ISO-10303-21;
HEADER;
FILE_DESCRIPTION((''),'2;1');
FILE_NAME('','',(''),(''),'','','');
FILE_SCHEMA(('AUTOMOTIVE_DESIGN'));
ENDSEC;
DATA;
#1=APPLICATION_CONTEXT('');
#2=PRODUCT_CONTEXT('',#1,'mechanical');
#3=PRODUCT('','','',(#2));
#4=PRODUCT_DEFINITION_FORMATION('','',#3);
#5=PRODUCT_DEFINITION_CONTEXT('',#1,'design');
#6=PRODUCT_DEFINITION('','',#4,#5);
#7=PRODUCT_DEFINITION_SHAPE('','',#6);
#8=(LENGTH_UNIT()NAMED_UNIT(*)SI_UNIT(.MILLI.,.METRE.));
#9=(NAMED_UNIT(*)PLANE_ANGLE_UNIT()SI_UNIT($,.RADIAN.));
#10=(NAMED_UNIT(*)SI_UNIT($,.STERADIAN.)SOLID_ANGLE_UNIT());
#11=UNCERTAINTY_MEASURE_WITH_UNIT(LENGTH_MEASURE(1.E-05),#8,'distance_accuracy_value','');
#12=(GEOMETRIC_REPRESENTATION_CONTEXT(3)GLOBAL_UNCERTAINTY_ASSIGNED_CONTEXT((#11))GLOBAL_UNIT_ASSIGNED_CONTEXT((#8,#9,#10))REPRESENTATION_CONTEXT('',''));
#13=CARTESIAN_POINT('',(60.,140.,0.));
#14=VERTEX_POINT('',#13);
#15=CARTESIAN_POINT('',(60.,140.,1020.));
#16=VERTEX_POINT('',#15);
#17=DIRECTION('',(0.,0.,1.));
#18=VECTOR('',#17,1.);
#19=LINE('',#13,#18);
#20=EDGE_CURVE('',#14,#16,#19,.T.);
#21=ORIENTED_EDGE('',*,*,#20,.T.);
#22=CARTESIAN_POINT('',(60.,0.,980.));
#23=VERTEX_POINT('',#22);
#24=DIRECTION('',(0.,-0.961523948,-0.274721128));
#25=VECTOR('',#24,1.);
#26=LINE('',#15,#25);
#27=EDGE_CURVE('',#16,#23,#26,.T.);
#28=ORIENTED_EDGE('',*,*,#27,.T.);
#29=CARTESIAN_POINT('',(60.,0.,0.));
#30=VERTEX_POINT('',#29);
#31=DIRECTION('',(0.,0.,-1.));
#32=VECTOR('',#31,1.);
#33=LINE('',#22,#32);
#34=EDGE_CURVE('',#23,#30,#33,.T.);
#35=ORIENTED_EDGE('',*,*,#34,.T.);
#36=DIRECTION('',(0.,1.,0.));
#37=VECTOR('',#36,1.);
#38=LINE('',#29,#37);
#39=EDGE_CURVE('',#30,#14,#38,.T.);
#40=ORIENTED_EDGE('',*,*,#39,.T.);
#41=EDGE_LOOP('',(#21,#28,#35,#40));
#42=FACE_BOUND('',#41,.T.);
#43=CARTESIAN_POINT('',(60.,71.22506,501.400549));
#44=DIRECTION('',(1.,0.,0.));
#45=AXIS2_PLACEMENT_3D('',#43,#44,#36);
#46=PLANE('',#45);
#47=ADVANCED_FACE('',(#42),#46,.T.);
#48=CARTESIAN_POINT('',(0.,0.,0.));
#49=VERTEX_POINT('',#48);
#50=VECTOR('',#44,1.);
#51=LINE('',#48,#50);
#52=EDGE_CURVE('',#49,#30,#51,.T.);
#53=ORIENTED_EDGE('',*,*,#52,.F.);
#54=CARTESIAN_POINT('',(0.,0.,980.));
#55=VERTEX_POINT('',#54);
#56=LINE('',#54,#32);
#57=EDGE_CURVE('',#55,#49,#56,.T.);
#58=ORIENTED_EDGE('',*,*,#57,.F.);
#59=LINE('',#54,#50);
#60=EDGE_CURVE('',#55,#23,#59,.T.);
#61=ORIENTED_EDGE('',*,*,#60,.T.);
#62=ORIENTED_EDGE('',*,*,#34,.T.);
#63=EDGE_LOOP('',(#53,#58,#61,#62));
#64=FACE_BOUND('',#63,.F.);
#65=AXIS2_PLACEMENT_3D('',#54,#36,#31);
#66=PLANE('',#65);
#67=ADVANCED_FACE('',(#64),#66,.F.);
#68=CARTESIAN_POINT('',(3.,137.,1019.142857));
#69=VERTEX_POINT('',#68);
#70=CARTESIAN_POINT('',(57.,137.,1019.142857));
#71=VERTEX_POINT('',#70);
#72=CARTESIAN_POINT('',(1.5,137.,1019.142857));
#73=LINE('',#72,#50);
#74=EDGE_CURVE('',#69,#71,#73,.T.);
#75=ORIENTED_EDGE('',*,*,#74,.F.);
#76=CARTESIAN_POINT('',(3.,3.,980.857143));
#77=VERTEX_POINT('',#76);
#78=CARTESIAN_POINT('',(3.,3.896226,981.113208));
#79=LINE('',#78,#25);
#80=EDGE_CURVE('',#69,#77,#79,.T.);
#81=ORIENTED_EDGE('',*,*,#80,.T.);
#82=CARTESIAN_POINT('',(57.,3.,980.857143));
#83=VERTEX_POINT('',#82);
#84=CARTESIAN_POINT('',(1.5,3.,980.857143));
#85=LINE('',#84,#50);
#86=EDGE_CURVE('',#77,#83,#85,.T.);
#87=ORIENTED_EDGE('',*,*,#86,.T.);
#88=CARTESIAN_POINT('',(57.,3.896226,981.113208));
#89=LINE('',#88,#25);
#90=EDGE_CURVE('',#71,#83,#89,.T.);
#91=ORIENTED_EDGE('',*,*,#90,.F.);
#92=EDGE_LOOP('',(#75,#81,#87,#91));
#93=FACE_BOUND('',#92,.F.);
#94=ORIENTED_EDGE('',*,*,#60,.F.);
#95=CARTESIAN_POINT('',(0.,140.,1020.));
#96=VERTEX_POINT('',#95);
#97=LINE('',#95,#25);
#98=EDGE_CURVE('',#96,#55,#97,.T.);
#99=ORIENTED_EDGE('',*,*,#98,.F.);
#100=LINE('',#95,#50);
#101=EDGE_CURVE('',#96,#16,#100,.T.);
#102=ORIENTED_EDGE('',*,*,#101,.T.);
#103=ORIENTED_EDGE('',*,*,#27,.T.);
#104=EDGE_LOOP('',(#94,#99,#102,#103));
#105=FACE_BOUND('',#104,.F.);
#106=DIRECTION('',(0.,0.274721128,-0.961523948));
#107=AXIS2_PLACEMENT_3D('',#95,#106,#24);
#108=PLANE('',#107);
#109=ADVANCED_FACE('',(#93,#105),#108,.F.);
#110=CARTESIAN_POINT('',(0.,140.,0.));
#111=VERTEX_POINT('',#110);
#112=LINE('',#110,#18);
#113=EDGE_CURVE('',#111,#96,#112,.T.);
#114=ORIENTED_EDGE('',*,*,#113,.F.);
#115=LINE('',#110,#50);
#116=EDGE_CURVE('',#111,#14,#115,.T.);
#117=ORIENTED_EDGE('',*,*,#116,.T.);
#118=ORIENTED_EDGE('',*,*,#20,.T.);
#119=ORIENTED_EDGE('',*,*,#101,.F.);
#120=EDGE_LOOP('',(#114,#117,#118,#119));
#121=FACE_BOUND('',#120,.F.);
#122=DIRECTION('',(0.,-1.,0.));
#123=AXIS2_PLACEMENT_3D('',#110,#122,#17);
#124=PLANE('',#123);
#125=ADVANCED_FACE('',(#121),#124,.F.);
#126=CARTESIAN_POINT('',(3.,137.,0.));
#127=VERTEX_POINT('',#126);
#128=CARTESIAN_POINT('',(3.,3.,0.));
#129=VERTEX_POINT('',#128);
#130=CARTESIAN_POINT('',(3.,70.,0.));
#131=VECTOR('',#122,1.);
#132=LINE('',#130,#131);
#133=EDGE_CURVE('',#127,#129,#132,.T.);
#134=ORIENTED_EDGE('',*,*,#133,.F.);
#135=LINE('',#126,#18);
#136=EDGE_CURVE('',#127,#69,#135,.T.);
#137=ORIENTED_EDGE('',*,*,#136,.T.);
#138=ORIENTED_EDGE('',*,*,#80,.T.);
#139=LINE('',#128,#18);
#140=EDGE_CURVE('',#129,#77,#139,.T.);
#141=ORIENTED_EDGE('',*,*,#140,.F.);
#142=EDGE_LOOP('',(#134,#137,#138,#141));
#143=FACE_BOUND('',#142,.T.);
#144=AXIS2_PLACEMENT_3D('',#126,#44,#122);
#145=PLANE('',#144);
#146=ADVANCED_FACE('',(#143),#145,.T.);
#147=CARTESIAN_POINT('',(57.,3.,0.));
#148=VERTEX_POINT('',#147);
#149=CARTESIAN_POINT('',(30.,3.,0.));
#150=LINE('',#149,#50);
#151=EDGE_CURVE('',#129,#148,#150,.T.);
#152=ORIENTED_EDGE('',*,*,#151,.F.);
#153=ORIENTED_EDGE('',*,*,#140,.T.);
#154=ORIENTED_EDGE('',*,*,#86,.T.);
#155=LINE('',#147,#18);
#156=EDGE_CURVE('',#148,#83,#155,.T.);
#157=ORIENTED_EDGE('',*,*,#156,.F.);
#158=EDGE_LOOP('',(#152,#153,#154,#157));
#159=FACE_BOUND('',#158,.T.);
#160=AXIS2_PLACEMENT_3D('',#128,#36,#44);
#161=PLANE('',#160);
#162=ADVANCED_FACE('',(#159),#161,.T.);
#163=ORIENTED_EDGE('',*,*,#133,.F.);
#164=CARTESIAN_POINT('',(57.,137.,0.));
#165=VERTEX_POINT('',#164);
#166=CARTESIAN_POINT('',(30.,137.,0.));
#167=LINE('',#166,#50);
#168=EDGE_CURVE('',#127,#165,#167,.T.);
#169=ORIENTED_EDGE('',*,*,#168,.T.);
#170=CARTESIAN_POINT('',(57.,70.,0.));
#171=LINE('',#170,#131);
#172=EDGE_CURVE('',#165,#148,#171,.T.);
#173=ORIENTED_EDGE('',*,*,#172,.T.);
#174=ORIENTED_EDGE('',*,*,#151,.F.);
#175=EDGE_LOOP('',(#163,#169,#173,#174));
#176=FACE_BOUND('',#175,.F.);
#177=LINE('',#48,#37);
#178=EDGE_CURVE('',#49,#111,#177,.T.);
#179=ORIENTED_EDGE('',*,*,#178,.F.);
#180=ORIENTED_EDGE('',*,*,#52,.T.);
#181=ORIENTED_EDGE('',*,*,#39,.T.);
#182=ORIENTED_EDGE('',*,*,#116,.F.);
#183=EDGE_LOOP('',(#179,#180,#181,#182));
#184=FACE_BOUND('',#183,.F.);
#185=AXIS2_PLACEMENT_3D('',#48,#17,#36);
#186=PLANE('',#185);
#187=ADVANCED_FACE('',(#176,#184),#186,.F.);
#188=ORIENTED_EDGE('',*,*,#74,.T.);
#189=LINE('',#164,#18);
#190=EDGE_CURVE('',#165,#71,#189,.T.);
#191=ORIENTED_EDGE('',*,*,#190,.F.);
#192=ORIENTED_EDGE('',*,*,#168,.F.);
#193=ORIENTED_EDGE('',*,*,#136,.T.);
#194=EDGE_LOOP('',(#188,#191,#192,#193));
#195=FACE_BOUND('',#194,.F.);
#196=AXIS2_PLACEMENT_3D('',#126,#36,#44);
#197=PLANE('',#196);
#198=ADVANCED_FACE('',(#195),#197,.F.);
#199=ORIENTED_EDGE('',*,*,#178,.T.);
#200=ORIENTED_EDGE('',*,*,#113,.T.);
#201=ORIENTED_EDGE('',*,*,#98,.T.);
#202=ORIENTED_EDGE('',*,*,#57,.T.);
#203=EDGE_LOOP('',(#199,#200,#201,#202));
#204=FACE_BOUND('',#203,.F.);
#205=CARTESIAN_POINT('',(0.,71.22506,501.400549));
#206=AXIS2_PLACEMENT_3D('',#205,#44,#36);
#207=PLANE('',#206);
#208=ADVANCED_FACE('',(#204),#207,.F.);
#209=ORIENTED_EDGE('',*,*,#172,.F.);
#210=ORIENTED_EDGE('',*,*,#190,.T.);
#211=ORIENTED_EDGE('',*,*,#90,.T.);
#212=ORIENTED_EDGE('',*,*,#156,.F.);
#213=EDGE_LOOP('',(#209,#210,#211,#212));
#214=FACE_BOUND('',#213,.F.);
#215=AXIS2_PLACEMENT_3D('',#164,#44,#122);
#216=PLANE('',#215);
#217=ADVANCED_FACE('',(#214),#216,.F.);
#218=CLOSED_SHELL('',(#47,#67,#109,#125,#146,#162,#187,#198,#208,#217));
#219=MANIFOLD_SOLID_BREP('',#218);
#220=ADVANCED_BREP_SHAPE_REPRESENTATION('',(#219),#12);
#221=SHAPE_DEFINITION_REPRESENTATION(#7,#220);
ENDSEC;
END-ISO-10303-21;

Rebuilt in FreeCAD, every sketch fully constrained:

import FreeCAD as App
import Part
import Sketcher
from FreeCAD import Vector


def add_polygon(sketch, points):
    """Adds a closed chain of lines whose ends are joined by coincident constraints."""
    first, n = sketch.GeometryCount, len(points)
    for a, b in zip(points, points[1:] + points[:1]):
        sketch.addGeometry(Part.LineSegment(App.Vector(*a, 0), App.Vector(*b, 0)), False)
    for i in range(n):
        sketch.addConstraint(Sketcher.Constraint("Coincident", first + i, 2, first + (i + 1) % n, 1))

doc = App.newDocument("Part")
body = doc.addObject("PartDesign::Body", "Body")

sketch1 = doc.addObject("Sketcher::SketchObject", "Sketch")
body.addObject(sketch1)
sketch1.AttachmentSupport = (doc.YZ_Plane, [""])
sketch1.MapMode = "FlatFace"
add_polygon(sketch1, [(0, 980), (0, 0), (140, 0), (140, 1020)])
sketch1.addConstraint(Sketcher.Constraint("Vertical", 0))
sketch1.addConstraint(Sketcher.Constraint("Horizontal", 1))
sketch1.addConstraint(Sketcher.Constraint("Vertical", 2))
sketch1.addConstraint(Sketcher.Constraint("Coincident", 0, 2, -1, 1))
sketch1.addConstraint(Sketcher.Constraint("DistanceX", 1, 1, 1, 2, 140.0))
sketch1.addConstraint(Sketcher.Constraint("DistanceY", 0, 2, 0, 1, 980.0))
sketch1.addConstraint(Sketcher.Constraint("DistanceY", 2, 1, 2, 2, 1020.0))
pad1 = doc.addObject("PartDesign::Pad", "Pad")
body.addObject(pad1)
pad1.Profile = sketch1
pad1.Length = 60

sketch2 = doc.addObject("Sketcher::SketchObject", "Sketch001")
body.addObject(sketch2)
sketch2.AttachmentSupport = (doc.XY_Plane, [""])
sketch2.MapMode = "FlatFace"
add_polygon(sketch2, [(3, 3), (3, 137), (57, 137), (57, 3)])
sketch2.addConstraint(Sketcher.Constraint("Vertical", 0))
sketch2.addConstraint(Sketcher.Constraint("Horizontal", 1))
sketch2.addConstraint(Sketcher.Constraint("Vertical", 2))
sketch2.addConstraint(Sketcher.Constraint("Horizontal", 3))
sketch2.addConstraint(Sketcher.Constraint("DistanceX", 1, 1, 1, 2, 54.0))
sketch2.addConstraint(Sketcher.Constraint("DistanceY", 0, 1, 0, 2, 134.0))
sketch2.addConstraint(Sketcher.Constraint("DistanceX", -1, 1, 0, 2, 3.0))
sketch2.addConstraint(Sketcher.Constraint("DistanceY", -1, 1, 0, 2, 137.0))
pocket1 = doc.addObject("PartDesign::Pocket", "Pocket")
body.addObject(pocket1)
pocket1.Profile = sketch2
pocket1.Type = "ThroughAll"
pocket1.Reversed = True

doc.recompute()
